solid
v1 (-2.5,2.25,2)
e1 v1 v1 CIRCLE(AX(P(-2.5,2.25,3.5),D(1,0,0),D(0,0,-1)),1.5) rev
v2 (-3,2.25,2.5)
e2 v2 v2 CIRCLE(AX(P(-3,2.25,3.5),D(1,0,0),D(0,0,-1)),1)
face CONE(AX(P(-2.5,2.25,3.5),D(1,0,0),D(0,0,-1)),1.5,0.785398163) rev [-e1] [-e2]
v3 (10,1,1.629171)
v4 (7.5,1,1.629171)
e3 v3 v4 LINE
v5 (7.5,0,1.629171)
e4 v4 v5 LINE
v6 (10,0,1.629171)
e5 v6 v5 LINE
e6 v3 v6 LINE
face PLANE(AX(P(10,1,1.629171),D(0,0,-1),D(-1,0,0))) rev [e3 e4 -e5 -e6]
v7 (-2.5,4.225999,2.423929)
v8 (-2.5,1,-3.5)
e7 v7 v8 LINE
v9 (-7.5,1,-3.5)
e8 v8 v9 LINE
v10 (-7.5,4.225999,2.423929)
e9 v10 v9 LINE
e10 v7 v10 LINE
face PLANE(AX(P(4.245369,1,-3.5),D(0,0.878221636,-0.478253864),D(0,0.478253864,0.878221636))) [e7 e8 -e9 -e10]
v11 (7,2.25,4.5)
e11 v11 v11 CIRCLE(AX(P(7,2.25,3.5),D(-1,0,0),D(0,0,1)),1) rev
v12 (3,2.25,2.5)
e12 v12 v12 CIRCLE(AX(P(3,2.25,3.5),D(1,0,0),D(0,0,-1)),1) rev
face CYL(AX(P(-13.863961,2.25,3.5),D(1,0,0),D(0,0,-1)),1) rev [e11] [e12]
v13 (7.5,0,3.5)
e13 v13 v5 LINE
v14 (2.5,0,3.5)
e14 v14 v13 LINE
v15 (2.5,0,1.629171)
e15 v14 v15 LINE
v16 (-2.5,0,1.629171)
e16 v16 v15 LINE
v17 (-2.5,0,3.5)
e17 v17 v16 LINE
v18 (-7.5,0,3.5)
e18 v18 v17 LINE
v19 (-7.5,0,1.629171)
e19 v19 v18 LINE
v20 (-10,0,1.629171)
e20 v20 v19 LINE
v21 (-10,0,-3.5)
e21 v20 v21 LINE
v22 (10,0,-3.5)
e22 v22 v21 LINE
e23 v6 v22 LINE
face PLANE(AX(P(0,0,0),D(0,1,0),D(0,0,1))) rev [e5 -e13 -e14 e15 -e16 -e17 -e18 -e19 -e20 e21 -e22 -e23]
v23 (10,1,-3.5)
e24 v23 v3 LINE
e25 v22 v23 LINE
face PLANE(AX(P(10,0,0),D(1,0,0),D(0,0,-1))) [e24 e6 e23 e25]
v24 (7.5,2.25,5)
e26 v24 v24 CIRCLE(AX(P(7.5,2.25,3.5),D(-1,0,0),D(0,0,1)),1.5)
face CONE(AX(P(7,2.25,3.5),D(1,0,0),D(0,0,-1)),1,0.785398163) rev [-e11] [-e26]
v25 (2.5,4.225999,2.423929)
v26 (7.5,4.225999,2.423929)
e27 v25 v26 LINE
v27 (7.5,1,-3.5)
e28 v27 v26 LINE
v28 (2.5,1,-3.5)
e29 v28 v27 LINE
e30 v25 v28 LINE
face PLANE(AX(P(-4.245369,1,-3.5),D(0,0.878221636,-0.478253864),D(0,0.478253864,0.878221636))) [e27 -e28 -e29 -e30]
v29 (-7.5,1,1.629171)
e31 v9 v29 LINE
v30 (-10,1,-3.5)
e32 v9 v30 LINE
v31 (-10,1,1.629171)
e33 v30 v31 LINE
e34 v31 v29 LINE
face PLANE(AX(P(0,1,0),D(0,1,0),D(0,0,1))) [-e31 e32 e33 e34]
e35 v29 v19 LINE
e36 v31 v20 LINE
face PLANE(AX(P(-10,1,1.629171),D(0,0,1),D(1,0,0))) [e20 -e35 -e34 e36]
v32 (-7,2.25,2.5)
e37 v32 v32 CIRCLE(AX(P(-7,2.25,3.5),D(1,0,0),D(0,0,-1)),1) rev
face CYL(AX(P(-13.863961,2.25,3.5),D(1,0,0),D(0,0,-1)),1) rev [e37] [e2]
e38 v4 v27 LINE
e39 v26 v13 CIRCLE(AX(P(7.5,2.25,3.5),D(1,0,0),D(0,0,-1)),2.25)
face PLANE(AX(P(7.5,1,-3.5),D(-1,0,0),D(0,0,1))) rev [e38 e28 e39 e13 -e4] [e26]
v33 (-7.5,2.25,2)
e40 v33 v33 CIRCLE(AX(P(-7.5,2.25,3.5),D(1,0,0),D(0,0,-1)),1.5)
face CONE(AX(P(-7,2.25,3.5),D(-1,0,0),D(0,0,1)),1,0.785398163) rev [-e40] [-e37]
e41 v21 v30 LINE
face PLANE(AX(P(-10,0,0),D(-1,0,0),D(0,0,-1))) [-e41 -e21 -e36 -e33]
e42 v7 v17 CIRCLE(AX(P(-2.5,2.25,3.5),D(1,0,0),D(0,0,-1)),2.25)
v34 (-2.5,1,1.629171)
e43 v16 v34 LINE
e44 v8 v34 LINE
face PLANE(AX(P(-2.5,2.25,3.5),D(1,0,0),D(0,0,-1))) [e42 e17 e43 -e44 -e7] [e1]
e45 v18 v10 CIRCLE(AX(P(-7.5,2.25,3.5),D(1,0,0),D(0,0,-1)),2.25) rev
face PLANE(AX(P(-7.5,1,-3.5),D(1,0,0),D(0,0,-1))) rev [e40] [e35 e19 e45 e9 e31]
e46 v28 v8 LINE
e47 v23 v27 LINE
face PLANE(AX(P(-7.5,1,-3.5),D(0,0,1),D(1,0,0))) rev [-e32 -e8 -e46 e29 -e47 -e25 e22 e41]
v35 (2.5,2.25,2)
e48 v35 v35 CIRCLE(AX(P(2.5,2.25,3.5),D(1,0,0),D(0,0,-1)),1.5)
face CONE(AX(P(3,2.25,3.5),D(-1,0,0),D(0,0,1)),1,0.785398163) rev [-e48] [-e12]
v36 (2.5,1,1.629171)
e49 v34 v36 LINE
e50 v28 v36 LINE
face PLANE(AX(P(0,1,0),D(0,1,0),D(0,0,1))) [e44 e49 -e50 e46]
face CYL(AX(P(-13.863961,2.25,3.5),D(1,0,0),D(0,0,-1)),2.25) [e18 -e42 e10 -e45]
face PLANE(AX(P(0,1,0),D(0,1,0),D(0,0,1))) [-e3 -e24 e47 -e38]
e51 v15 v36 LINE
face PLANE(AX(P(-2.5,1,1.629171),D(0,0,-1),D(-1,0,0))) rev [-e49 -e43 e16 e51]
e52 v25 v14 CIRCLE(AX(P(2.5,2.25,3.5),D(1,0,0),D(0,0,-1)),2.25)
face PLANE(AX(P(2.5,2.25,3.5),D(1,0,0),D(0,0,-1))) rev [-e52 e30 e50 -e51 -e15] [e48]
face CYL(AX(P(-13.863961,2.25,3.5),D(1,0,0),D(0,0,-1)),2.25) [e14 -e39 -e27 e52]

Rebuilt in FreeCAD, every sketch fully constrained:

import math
import FreeCAD as App
import Part
import Sketcher

V = App.Vector


def edges_at(feature, points):
    """Names of the edges that pass closest to the given points."""
    edges = feature.Shape.Edges
    near = lambda p: min(range(len(edges)), key=lambda i: edges[i].distToShape(Part.Vertex(*p))[0])
    return sorted({f"Edge{near(p) + 1}" for p in points})


def add_polygon(sketch, points):
    """Adds a closed chain of lines whose ends are joined by coincident constraints."""
    first, n = sketch.GeometryCount, len(points)
    for a, b in zip(points, points[1:] + points[:1]):
        sketch.addGeometry(Part.LineSegment(App.Vector(*a, 0), App.Vector(*b, 0)), False)
    for i in range(n):
        sketch.addConstraint(Sketcher.Constraint("Coincident", first + i, 2, first + (i + 1) % n, 1))

doc = App.newDocument("Part")
body = doc.addObject("PartDesign::Body", "Body")

sketch1 = body.newObject("Sketcher::SketchObject", "Sketch")
sketch1.AttachmentSupport = (doc.getObject("XZ_Plane"), [""])
sketch1.MapMode = "FlatFace"
add_polygon(sketch1, [(-8, -4), (-8, 4), (8, 4), (8, -4)])
sketch1.addConstraint([
    Sketcher.Constraint("Vertical", 0),
    Sketcher.Constraint("Horizontal", 1),
    Sketcher.Constraint("Vertical", 2),
    Sketcher.Constraint("Horizontal", 3),
    Sketcher.Constraint("Symmetric", 0, 2, 2, 2, -1, 1),
    Sketcher.Constraint("DistanceX", 1, 1, 1, 2, 15.0),
    Sketcher.Constraint("DistanceY", 0, 1, 0, 2, 7.0),
])
pad1 = body.newObject("PartDesign::Pad", "Pad")
pad1.Profile = sketch1
pad1.Length = 1
pad1.Reversed = True

sketch2 = body.newObject("Sketcher::SketchObject", "Sketch001")
sketch2.AttachmentSupport = (doc.getObject("YZ_Plane"), [""])
sketch2.MapMode = "FlatFace"
sketch2.AttachmentOffset = App.Placement(V(0, 0, 7.5), App.Rotation())
sketch2.addGeometry([
    Part.Circle(V(2.2, 3.5, 0), V(0, 0, 1), 2.2),
    Part.Circle(V(2.2, 3.5, 0), V(0, 0, 1), 1),
], False)
sketch2.addConstraint([
    Sketcher.Constraint("Coincident", 1, 3, 0, 3),
    Sketcher.Constraint("Diameter", 1, 2.0),
    Sketcher.Constraint("Diameter", 0, 4.5),
    Sketcher.Constraint("DistanceY", -1, 1, 0, 3, 3.5),
    Sketcher.Constraint("DistanceX", -1, 1, 0, 3, 2.25),
])
pad2 = body.newObject("PartDesign::Pad", "Pad001")
pad2.Profile = sketch2
pad2.Length = 15
pad2.Reversed = True

sketch3 = body.newObject("Sketcher::SketchObject", "Sketch002")
sketch3.AttachmentSupport = (doc.getObject("YZ_Plane"), [""])
sketch3.MapMode = "FlatFace"
sketch3.AttachmentOffset = App.Placement(V(0, 0, 2.5), App.Rotation())
sketch3.addGeometry([
    Part.LineSegment(V(0, 1.6, 0), V(1, 1.6, 0)),
    Part.ArcOfCircle(Part.Circle(V(2.2, 3.5, 0), V(0, 0, 1), 2.2), math.radians(-124), math.radians(180)),
    Part.LineSegment(V(0, 3.5, 0), V(0, 1.6, 0)),
], False)
sketch3.addConstraint([
    Sketcher.Constraint("Coincident", 0, 2, 1, 1),
    Sketcher.Constraint("Tangent", 1, 2, 2, 1),
    Sketcher.Constraint("Coincident", 2, 2, 0, 1),
    Sketcher.Constraint("Horizontal", 0),
    Sketcher.Constraint("Vertical", 2),
    Sketcher.Constraint("PointOnObject", 1, 2, -2),
    Sketcher.Constraint("DistanceX", 0, 1, 0, 2, 1.0),
    Sketcher.Constraint("Radius", 1, 2.25),
    Sketcher.Constraint("DistanceY", -1, 1, 1, 3, 3.5),
])
pocket1 = body.newObject("PartDesign::Pocket", "Pocket")
pocket1.Profile = sketch3
pocket1.Length = 5

sketch4 = body.newObject("Sketcher::SketchObject", "Sketch003")
sketch4.AttachmentSupport = (doc.getObject("YZ_Plane"), [""])
sketch4.MapMode = "FlatFace"
sketch4.AttachmentOffset = App.Placement(V(0, 0, 7.5), App.Rotation())
add_polygon(sketch4, [(1, 1.6), (0, 1.6), (0, -3.5), (1, -3.5)])
sketch4.addConstraint([
    Sketcher.Constraint("Horizontal", 0),
    Sketcher.Constraint("Vertical", 1),
    Sketcher.Constraint("Horizontal", 2),
    Sketcher.Constraint("Vertical", 3),
    Sketcher.Constraint("PointOnObject", 0, 2, -2),
    Sketcher.Constraint("DistanceX", 0, 2, 0, 1, 1.0),
    Sketcher.Constraint("DistanceY", 1, 2, -1, 1, 3.5),
    Sketcher.Constraint("DistanceY", 1, 2, 1, 1, 5.129171),
])
pad3 = body.newObject("PartDesign::Pad", "Pad002")
pad3.Profile = sketch4
pad3.Length = 2.5
doc.recompute()

mirrored = body.newObject("PartDesign::Mirrored", "Mirrored")
mirrored.Originals = [pad3]
mirrored.MirrorPlane = (doc.getObject("YZ_Plane"), [""])
body.Tip = mirrored
doc.recompute()

chamfer = body.newObject("PartDesign::Chamfer", "Chamfer")
chamfer.Base = (mirrored, edges_at(mirrored, [
    (-7.5, 2.25, 4.5),
    (7.5, 2.25, 4.5),
    (2.5, 2.25, 4.5),
    (-2.5, 2.25, 4.5),
]))
chamfer.Size = 0.5

sketch5 = body.newObject("Sketcher::SketchObject", "Sketch004")
sketch5.AttachmentSupport = (doc.getObject("YZ_Plane"), [""])
sketch5.MapMode = "FlatFace"
sketch5.AttachmentOffset = App.Placement(V(0, 0, 7.5), App.Rotation())
add_polygon(sketch5, [(1, 1.6), (1, -3.5), (4.2, 2.4)])
sketch5.addConstraint([
    Sketcher.Constraint("Vertical", 0),
    Sketcher.Constraint("DistanceX", -1, 1, 0, 2, 1.0),
    Sketcher.Constraint("DistanceY", 0, 2, -1, 1, 3.5),
    Sketcher.Constraint("DistanceX", -1, 1, 1, 2, 4.225999),
    Sketcher.Constraint("DistanceY", 0, 2, 0, 1, 5.129171),
    Sketcher.Constraint("Distance", 1, 6.745369),
])
pad4 = body.newObject("PartDesign::Pad", "Pad003")
pad4.Profile = sketch5
pad4.Length = 5
pad4.Reversed = True

sketch6 = body.newObject("Sketcher::SketchObject", "Sketch005")
sketch6.AttachmentSupport = (doc.getObject("YZ_Plane"), [""])
sketch6.MapMode = "FlatFace"
sketch6.AttachmentOffset = App.Placement(V(0, 0, -7.5), App.Rotation())
add_polygon(sketch6, [(1, -3.5), (1, 1.6), (4.2, 2.4)])
sketch6.addConstraint([
    Sketcher.Constraint("Vertical", 0),
    Sketcher.Constraint("DistanceX", -1, 1, 0, 2, 1.0),
    Sketcher.Constraint("DistanceY", 2, 2, -1, 1, 3.5),
    Sketcher.Constraint("DistanceX", -1, 1, 1, 2, 4.225999),
    Sketcher.Constraint("DistanceY", 0, 1, 0, 2, 5.129171),
    Sketcher.Constraint("Distance", 2, 6.745369),
])
pad5 = body.newObject("PartDesign::Pad", "Pad004")
pad5.Profile = sketch6
pad5.Length = 5

doc.recompute()
